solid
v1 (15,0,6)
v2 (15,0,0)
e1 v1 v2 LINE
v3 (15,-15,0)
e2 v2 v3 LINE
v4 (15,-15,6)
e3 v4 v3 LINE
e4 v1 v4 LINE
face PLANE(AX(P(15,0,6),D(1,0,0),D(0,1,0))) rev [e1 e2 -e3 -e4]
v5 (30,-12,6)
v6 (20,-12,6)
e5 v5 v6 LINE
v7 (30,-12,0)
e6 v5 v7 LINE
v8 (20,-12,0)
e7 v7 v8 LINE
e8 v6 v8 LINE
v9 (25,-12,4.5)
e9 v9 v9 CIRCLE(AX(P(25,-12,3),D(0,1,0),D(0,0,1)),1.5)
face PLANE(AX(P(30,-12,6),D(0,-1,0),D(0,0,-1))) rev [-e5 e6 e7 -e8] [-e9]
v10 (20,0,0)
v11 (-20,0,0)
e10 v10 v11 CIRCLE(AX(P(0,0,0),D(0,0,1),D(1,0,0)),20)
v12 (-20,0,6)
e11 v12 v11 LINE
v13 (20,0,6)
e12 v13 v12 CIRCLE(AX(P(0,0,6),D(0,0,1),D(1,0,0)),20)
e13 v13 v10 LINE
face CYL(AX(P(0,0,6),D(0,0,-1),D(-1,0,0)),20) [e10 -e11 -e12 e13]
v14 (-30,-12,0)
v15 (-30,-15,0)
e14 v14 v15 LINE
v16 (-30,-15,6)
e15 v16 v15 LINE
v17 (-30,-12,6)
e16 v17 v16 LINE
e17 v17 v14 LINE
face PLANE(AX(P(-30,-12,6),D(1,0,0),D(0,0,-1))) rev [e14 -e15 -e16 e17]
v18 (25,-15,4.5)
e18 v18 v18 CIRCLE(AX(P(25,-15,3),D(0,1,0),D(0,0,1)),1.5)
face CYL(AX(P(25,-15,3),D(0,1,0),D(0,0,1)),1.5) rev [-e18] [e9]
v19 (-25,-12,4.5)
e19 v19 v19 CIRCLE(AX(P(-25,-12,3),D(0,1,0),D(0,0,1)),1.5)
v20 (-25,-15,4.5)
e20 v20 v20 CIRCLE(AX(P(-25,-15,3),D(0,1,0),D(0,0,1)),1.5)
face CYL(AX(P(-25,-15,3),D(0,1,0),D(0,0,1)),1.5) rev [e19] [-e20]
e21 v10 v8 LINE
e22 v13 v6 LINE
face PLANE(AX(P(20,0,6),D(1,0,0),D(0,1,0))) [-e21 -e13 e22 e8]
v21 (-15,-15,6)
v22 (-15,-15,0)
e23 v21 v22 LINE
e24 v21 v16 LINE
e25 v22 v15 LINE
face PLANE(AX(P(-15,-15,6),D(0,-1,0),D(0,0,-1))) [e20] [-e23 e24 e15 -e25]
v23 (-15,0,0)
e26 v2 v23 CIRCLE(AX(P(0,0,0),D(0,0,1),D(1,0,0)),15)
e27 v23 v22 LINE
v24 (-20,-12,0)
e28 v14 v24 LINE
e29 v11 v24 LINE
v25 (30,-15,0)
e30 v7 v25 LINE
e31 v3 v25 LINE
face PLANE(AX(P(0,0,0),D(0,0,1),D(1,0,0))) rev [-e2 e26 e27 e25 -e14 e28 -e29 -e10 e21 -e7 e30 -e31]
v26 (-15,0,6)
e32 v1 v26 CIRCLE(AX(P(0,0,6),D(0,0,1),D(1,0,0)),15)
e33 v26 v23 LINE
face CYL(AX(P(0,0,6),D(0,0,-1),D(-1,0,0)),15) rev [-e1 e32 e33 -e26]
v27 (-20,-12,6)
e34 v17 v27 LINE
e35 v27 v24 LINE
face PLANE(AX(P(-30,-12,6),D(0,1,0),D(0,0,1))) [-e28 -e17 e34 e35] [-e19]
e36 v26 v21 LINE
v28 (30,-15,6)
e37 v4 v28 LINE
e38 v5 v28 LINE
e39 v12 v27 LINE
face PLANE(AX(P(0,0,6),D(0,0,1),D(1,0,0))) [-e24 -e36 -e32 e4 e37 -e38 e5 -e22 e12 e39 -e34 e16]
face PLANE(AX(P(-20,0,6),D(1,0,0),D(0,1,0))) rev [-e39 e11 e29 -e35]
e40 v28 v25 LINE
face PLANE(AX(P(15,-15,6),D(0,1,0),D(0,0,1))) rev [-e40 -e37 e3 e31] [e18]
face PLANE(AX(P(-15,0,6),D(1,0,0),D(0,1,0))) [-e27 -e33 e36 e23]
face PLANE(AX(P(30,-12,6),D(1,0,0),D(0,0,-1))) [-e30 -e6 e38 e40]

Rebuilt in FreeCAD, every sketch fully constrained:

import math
import FreeCAD as App
import Part
import Sketcher
Q = App.Units.Quantity

doc = App.newDocument("Part")
body = doc.addObject("PartDesign::Body", "Body")

# Sketch on XY plane
sketch1 = body.newObject("Sketcher::SketchObject", "Sketch")
sketch1.AttachmentSupport = (doc.getObject("XY_Plane"), [""])
sketch1.MapMode = "FlatFace"
sketch1.addGeometry([
    Part.LineSegment(App.Vector(15, 0, 0), App.Vector(15, -15, 0)),  # 0
    Part.LineSegment(App.Vector(15, -15, 0), App.Vector(30, -15, 0)),  # 1
    Part.LineSegment(App.Vector(30, -15, 0), App.Vector(30, -12, 0)),  # 2
    Part.LineSegment(App.Vector(30, -12, 0), App.Vector(20, -12, 0)),  # 3
    Part.LineSegment(App.Vector(20, -12, 0), App.Vector(20, 0, 0)),  # 4
    Part.ArcOfCircle(Part.Circle(App.Vector(0, 0, 0), App.Vector(0, 0, 1), 20), math.radians(0), math.radians(180)),  # 5
    Part.LineSegment(App.Vector(-20, 0, 0), App.Vector(-20, -12, 0)),  # 6
    Part.LineSegment(App.Vector(-20, -12, 0), App.Vector(-30, -12, 0)),  # 7
    Part.LineSegment(App.Vector(-30, -12, 0), App.Vector(-30, -15, 0)),  # 8
    Part.LineSegment(App.Vector(-30, -15, 0), App.Vector(-15, -15, 0)),  # 9
    Part.LineSegment(App.Vector(-15, -15, 0), App.Vector(-15, 0, 0)),  # 10
    Part.ArcOfCircle(Part.Circle(App.Vector(0, 0, 0), App.Vector(0, 0, 1), 15), math.radians(0), math.radians(180)),  # 11
], False)
sketch1.addConstraint([
    Sketcher.Constraint("Coincident", 0, 2, 1, 1),
    Sketcher.Constraint("Coincident", 1, 2, 2, 1),
    Sketcher.Constraint("Coincident", 2, 2, 3, 1),
    Sketcher.Constraint("Coincident", 3, 2, 4, 1),
    Sketcher.Constraint("Tangent", 4, 2, 5, 1),
    Sketcher.Constraint("Tangent", 5, 2, 6, 1),
    Sketcher.Constraint("Coincident", 6, 2, 7, 1),
    Sketcher.Constraint("Coincident", 7, 2, 8, 1),
    Sketcher.Constraint("Coincident", 8, 2, 9, 1),
    Sketcher.Constraint("Coincident", 9, 2, 10, 1),
    Sketcher.Constraint("Tangent", 10, 2, 11, 2),
    Sketcher.Constraint("Tangent", 11, 1, 0, 1),
    Sketcher.Constraint("Vertical", 0),
    Sketcher.Constraint("Horizontal", 1),
    Sketcher.Constraint("Vertical", 2),
    Sketcher.Constraint("Horizontal", 3),
    Sketcher.Constraint("Vertical", 4),
    Sketcher.Constraint("Vertical", 6),
    Sketcher.Constraint("Horizontal", 7),
    Sketcher.Constraint("Vertical", 8),
    Sketcher.Constraint("Horizontal", 9),
    Sketcher.Constraint("Vertical", 10),
    Sketcher.Constraint("Coincident", 5, 3, -1, 1),
    Sketcher.Constraint("Coincident", 11, 3, -1, 1),
    Sketcher.Constraint("Symmetric", 2, 2, 7, 2, -2),
    Sketcher.Constraint("Horizontal", 1, 2, 8, 2),
    Sketcher.Constraint("Equal", 9, 0),
    Sketcher.Constraint("Radius", 5, Q("20 mm")),
    Sketcher.Constraint("Radius", 11, Q("15 mm")),
    Sketcher.Constraint("DistanceX", 1, 1, 1, 2, Q("15 mm")),
    Sketcher.Constraint("DistanceY", 2, 1, 2, 2, Q("3 mm")),
])
pad1 = body.newObject("PartDesign::Pad", "Pad")
pad1.Profile = sketch1
pad1.Length = 6

# Sketch on XZ plane
sketch2 = body.newObject("Sketcher::SketchObject", "Sketch001")
sketch2.AttachmentSupport = (doc.getObject("XZ_Plane"), [""])
sketch2.MapMode = "FlatFace"
sketch2.AttachmentOffset = App.Placement(App.Vector(0, 0, 12), App.Rotation())
sketch2.addGeometry([
    Part.Circle(App.Vector(-25, 3, 0), App.Vector(0, 0, 1), 1.5),
    Part.Circle(App.Vector(25, 3, 0), App.Vector(0, 0, 1), 1.5),
], False)
sketch2.addConstraint([
    Sketcher.Constraint("Equal", 0, 1),
    Sketcher.Constraint("Symmetric", 0, 3, 1, 3, -2),
    Sketcher.Constraint("Diameter", 0, Q("3 mm")),
    Sketcher.Constraint("DistanceX", 0, 3, -1, 1, Q("25 mm")),
    Sketcher.Constraint("DistanceY", -1, 1, 0, 3, Q("3 mm")),
])
pocket1 = body.newObject("PartDesign::Pocket", "Pocket")
pocket1.Profile = sketch2
pocket1.Length = 3
pocket1.Reversed = True

doc.recompute()
